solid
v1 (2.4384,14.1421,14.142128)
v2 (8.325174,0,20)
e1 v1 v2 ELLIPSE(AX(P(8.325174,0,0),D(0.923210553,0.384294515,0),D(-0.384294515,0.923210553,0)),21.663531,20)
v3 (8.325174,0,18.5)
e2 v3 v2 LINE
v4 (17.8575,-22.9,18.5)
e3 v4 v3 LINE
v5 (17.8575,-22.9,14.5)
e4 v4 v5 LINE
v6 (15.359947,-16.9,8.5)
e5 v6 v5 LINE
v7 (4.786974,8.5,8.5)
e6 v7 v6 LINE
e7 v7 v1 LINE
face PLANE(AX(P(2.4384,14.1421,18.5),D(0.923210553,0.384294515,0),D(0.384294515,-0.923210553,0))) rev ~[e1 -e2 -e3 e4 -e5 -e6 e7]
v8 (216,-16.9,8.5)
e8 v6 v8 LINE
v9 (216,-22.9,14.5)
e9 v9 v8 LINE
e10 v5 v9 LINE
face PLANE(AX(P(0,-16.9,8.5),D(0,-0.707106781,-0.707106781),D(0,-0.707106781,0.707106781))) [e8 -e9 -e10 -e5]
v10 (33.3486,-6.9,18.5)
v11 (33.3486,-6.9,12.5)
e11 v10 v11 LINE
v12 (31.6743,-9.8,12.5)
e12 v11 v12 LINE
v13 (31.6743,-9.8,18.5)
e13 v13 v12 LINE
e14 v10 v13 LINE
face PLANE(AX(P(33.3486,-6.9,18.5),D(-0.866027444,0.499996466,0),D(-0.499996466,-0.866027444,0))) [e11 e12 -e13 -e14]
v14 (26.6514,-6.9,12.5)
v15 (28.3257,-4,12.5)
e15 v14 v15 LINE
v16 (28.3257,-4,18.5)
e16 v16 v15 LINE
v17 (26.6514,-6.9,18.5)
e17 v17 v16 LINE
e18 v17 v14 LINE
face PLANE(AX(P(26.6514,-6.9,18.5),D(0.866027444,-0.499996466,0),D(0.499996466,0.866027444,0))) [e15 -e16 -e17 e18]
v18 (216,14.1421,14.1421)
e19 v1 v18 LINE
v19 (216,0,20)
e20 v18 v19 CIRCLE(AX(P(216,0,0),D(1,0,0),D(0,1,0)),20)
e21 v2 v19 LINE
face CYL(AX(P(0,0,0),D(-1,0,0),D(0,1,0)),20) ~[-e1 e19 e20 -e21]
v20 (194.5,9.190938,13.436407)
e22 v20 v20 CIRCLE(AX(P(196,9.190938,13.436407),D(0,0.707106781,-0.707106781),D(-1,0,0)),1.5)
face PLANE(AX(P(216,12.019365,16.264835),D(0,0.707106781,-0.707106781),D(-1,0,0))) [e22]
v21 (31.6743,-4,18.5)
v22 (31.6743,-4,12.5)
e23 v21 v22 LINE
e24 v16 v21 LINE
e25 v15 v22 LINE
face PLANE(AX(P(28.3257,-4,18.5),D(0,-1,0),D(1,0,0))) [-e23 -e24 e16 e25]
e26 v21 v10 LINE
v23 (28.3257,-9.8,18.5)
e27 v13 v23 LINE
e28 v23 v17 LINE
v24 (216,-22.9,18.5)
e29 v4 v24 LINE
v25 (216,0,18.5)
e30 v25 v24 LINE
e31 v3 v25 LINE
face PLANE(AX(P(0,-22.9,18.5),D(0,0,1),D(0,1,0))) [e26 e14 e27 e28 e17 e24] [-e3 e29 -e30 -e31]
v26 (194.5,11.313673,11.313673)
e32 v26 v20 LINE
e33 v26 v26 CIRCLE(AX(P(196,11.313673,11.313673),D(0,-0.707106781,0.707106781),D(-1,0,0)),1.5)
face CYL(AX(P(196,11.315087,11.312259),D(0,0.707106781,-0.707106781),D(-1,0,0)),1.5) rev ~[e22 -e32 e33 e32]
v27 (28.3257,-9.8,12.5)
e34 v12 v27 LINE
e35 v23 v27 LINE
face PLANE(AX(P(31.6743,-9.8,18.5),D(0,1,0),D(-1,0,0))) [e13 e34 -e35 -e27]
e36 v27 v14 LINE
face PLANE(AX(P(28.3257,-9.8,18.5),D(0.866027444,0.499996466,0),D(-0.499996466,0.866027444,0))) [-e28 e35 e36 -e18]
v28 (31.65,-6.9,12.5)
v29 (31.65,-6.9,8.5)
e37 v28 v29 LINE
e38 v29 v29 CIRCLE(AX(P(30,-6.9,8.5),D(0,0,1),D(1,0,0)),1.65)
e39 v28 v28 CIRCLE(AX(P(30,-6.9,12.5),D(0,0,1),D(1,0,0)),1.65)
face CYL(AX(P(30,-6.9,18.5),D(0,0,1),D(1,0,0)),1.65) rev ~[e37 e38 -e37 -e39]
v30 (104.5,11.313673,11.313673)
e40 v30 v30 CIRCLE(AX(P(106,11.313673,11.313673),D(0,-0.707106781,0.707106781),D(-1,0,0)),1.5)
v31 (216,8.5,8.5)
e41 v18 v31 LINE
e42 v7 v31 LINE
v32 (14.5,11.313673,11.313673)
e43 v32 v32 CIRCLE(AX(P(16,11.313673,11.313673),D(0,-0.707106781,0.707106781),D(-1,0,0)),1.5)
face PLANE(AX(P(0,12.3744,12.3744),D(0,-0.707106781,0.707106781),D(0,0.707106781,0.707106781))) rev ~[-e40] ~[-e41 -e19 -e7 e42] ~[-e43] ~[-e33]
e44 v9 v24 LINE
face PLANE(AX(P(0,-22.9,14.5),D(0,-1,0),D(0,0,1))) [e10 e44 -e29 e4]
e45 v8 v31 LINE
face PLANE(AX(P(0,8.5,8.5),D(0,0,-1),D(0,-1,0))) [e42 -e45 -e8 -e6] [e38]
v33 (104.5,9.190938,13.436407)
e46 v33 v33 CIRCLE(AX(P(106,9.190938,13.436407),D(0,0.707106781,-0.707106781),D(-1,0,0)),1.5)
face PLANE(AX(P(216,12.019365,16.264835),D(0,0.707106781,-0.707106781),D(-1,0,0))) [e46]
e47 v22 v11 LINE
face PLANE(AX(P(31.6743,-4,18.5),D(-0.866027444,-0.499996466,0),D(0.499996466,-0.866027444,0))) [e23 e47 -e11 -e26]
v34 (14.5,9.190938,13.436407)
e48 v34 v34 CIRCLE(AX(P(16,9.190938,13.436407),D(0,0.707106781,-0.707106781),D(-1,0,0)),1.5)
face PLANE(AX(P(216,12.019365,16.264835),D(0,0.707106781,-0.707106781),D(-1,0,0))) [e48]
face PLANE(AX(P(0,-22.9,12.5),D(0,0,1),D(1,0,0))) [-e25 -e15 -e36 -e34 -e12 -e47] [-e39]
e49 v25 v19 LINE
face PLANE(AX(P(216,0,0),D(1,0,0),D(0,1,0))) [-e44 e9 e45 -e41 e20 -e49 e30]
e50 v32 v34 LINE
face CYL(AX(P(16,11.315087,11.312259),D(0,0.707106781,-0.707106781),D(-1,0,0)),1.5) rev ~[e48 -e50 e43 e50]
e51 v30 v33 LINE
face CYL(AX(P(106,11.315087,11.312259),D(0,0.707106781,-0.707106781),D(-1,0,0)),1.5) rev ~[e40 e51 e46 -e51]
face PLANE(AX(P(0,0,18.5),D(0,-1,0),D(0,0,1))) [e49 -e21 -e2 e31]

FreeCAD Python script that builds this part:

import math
import FreeCAD as App
import Part
import Sketcher

V = App.Vector
Q = App.Units.Quantity


def add_polygon(sketch, points):
    """Adds a closed chain of lines whose ends are joined by coincident constraints."""
    first, n = sketch.GeometryCount, len(points)
    for a, b in zip(points, points[1:] + points[:1]):
        sketch.addGeometry(Part.LineSegment(App.Vector(*a, 0), App.Vector(*b, 0)), False)
    for i in range(n):
        sketch.addConstraint(Sketcher.Constraint("Coincident", first + i, 2, first + (i + 1) % n, 1))

doc = App.newDocument("Part")
body = doc.addObject("PartDesign::Body", "Body")

# Sketch on YZ plane
sketch1 = body.newObject("Sketcher::SketchObject", "Sketch")
sketch1.AttachmentSupport = (doc.getObject("YZ_Plane"), [""])
sketch1.MapMode = "FlatFace"
sketch1.addGeometry([
    Part.ArcOfCircle(Part.Circle(V(0, 0, 0), V(0, 0, 1), 20), math.radians(45), math.radians(90)),  # 0
    Part.LineSegment(V(0, 20, 0), V(0, 18.5, 0)),  # 1
    Part.LineSegment(V(0, 18.5, 0), V(-22.9, 18.5, 0)),  # 2
    Part.LineSegment(V(-22.9, 18.5, 0), V(-22.9, 14.5, 0)),  # 3
    Part.LineSegment(V(-22.9, 14.5, 0), V(-16.9, 8.5, 0)),  # 4
    Part.LineSegment(V(-16.9, 8.5, 0), V(8.5, 8.5, 0)),  # 5
    Part.LineSegment(V(8.5, 8.5, 0), V(14.1, 14.1, 0)),  # 6
], False)
sketch1.addConstraint([
    Sketcher.Constraint("Coincident", 0, 2, 1, 1),
    Sketcher.Constraint("Coincident", 1, 2, 2, 1),
    Sketcher.Constraint("Coincident", 2, 2, 3, 1),
    Sketcher.Constraint("Coincident", 3, 2, 4, 1),
    Sketcher.Constraint("Coincident", 4, 2, 5, 1),
    Sketcher.Constraint("Coincident", 5, 2, 6, 1),
    Sketcher.Constraint("Coincident", 6, 2, 0, 1),
    Sketcher.Constraint("Vertical", 1),
    Sketcher.Constraint("Horizontal", 2),
    Sketcher.Constraint("Vertical", 3),
    Sketcher.Constraint("Horizontal", 5),
    Sketcher.Constraint("Coincident", 0, 3, -1, 1),
    Sketcher.Constraint("PointOnObject", 0, 2, -2),
    Sketcher.Constraint("Perpendicular", 4, 6),
    Sketcher.Constraint("Radius", 0, 20.0),
    Sketcher.Constraint("DistanceY", 3, 2, 3, 1, 4.0),
    Sketcher.Constraint("Angle", 4, Q("-45 deg")),
    Sketcher.Constraint("DistanceX", 5, 1, 5, 2, 25.4),
    Sketcher.Constraint("DistanceY", 1, 2, 1, 1, 1.5),
    Sketcher.Constraint("DistanceY", 4, 2, 2, 2, 10.0),
    Sketcher.Constraint("DistanceX", 2, 2, 2, 1, 22.9),
])
pad1 = body.newObject("PartDesign::Pad", "Pad")
pad1.Profile = sketch1
pad1.Length = 216

# Sketch on XY plane
sketch2 = body.newObject("Sketcher::SketchObject", "Sketch001")
sketch2.AttachmentSupport = (doc.getObject("XY_Plane"), [""])
sketch2.MapMode = "FlatFace"
sketch2.AttachmentOffset = App.Placement(V(0, 0, 18.5), App.Rotation())
add_polygon(sketch2, [(26.7, -6.9), (28.3, -9.8), (31.7, -9.8), (33.3, -6.9), (31.7, -4), (28.3, -4)])  # lines 0-5
sketch2.addConstraint([
    Sketcher.Constraint("Horizontal", 1),
    Sketcher.Constraint("Horizontal", 4),
    Sketcher.Constraint("Parallel", 0, 3),
    Sketcher.Constraint("Parallel", 2, 5),
    Sketcher.Constraint("Horizontal", 2, 2, 5, 2),
    Sketcher.Constraint("Vertical", 1, 2, 3, 2),
    Sketcher.Constraint("Vertical", 0, 2, 4, 2),
    Sketcher.Constraint("DistanceY", 1, 2, 3, 2, 5.8),
    Sketcher.Constraint("Angle", 0, Q("-60.0002 deg")),
    Sketcher.Constraint("DistanceY", 3, 2, -1, 1, 4.0),
    Sketcher.Constraint("DistanceX", 1, 1, 1, 2, 3.3486),
    Sketcher.Constraint("DistanceX", -1, 1, 0, 2, 28.3257),
])
pocket1 = body.newObject("PartDesign::Pocket", "Pocket")
pocket1.Profile = sketch2
pocket1.Length = 6

# Sketch on XY plane
sketch3 = body.newObject("Sketcher::SketchObject", "Sketch002")
sketch3.AttachmentSupport = (doc.getObject("XY_Plane"), [""])
sketch3.MapMode = "FlatFace"
sketch3.AttachmentOffset = App.Placement(V(0, 0, 18.5), App.Rotation())
sketch3.addGeometry(Part.Circle(V(30, -6.9, 0), V(0, 0, 1), 1.6), False)
sketch3.addConstraint([
    Sketcher.Constraint("Diameter", 0, 3.3),
    Sketcher.Constraint("DistanceX", -1, 1, 0, 3, 30.0),
    Sketcher.Constraint("DistanceY", 0, 3, -1, 1, 6.9),
])
pocket2 = body.newObject("PartDesign::Pocket", "Pocket001")
pocket2.Profile = sketch3
pocket2.Type = "ThroughAll"

# Sketch on an angled plane
sketch4 = body.newObject("Sketcher::SketchObject", "Sketch003")
sketch4.Placement = App.Placement(V(216, 14.1421, 14.1421), App.Rotation(V(-1, 0, 0), V(0, 0.707106781, 0.707106781), V(0, 0.707106781, -0.707106781), "ZXY"))
sketch4.addGeometry([
    Part.Circle(V(20, -4, 0), V(0, 0, 1), 1.5),
    Part.Circle(V(110, -4, 0), V(0, 0, 1), 1.5),
    Part.Circle(V(200, -4, 0), V(0, 0, 1), 1.5),
], False)
sketch4.addConstraint([
    Sketcher.Constraint("Equal", 0, 1),
    Sketcher.Constraint("Equal", 1, 2),
    Sketcher.Constraint("Horizontal", 0, 3, 1, 3),
    Sketcher.Constraint("Horizontal", 1, 3, 2, 3),
    Sketcher.Constraint("Diameter", 0, 3.0),
    Sketcher.Constraint("DistanceX", -1, 1, 0, 3, 20.0),
    Sketcher.Constraint("DistanceY", 0, 3, -1, 1, 4.0),
    Sketcher.Constraint("DistanceX", 0, 3, 1, 3, 90.0),
    Sketcher.Constraint("DistanceX", 1, 3, 2, 3, 90.0),
])
pocket3 = body.newObject("PartDesign::Pocket", "Pocket002")
pocket3.Profile = sketch4
pocket3.Length = 3

# Sketch on XY plane
sketch5 = body.newObject("Sketcher::SketchObject", "Sketch004")
sketch5.AttachmentSupport = (doc.getObject("XY_Plane"), [""])
sketch5.MapMode = "FlatFace"
sketch5.AttachmentOffset = App.Placement(V(0, 0, 18.5), App.Rotation())
add_polygon(sketch5, [(2.4, 14.1), (0, 14.1), (0, -22.9), (17.9, -22.9)])  # lines 0-3
sketch5.addConstraint([
    Sketcher.Constraint("Horizontal", 0),
    Sketcher.Constraint("Vertical", 1),
    Sketcher.Constraint("Horizontal", 2),
    Sketcher.Constraint("PointOnObject", 0, 2, -2),
    Sketcher.Constraint("Angle", 3, Q("112.6 deg")),
    Sketcher.Constraint("DistanceY", 1, 2, -1, 1, 22.9),
    Sketcher.Constraint("DistanceY", 1, 2, 1, 1, 37.042),
    Sketcher.Constraint("DistanceX", 0, 2, 0, 1, 2.4384),
])
pocket4 = body.newObject("PartDesign::Pocket", "Pocket003")
pocket4.Profile = sketch5
pocket4.Type = "ThroughAll"
pocket4.Midplane = True

doc.recompute()
